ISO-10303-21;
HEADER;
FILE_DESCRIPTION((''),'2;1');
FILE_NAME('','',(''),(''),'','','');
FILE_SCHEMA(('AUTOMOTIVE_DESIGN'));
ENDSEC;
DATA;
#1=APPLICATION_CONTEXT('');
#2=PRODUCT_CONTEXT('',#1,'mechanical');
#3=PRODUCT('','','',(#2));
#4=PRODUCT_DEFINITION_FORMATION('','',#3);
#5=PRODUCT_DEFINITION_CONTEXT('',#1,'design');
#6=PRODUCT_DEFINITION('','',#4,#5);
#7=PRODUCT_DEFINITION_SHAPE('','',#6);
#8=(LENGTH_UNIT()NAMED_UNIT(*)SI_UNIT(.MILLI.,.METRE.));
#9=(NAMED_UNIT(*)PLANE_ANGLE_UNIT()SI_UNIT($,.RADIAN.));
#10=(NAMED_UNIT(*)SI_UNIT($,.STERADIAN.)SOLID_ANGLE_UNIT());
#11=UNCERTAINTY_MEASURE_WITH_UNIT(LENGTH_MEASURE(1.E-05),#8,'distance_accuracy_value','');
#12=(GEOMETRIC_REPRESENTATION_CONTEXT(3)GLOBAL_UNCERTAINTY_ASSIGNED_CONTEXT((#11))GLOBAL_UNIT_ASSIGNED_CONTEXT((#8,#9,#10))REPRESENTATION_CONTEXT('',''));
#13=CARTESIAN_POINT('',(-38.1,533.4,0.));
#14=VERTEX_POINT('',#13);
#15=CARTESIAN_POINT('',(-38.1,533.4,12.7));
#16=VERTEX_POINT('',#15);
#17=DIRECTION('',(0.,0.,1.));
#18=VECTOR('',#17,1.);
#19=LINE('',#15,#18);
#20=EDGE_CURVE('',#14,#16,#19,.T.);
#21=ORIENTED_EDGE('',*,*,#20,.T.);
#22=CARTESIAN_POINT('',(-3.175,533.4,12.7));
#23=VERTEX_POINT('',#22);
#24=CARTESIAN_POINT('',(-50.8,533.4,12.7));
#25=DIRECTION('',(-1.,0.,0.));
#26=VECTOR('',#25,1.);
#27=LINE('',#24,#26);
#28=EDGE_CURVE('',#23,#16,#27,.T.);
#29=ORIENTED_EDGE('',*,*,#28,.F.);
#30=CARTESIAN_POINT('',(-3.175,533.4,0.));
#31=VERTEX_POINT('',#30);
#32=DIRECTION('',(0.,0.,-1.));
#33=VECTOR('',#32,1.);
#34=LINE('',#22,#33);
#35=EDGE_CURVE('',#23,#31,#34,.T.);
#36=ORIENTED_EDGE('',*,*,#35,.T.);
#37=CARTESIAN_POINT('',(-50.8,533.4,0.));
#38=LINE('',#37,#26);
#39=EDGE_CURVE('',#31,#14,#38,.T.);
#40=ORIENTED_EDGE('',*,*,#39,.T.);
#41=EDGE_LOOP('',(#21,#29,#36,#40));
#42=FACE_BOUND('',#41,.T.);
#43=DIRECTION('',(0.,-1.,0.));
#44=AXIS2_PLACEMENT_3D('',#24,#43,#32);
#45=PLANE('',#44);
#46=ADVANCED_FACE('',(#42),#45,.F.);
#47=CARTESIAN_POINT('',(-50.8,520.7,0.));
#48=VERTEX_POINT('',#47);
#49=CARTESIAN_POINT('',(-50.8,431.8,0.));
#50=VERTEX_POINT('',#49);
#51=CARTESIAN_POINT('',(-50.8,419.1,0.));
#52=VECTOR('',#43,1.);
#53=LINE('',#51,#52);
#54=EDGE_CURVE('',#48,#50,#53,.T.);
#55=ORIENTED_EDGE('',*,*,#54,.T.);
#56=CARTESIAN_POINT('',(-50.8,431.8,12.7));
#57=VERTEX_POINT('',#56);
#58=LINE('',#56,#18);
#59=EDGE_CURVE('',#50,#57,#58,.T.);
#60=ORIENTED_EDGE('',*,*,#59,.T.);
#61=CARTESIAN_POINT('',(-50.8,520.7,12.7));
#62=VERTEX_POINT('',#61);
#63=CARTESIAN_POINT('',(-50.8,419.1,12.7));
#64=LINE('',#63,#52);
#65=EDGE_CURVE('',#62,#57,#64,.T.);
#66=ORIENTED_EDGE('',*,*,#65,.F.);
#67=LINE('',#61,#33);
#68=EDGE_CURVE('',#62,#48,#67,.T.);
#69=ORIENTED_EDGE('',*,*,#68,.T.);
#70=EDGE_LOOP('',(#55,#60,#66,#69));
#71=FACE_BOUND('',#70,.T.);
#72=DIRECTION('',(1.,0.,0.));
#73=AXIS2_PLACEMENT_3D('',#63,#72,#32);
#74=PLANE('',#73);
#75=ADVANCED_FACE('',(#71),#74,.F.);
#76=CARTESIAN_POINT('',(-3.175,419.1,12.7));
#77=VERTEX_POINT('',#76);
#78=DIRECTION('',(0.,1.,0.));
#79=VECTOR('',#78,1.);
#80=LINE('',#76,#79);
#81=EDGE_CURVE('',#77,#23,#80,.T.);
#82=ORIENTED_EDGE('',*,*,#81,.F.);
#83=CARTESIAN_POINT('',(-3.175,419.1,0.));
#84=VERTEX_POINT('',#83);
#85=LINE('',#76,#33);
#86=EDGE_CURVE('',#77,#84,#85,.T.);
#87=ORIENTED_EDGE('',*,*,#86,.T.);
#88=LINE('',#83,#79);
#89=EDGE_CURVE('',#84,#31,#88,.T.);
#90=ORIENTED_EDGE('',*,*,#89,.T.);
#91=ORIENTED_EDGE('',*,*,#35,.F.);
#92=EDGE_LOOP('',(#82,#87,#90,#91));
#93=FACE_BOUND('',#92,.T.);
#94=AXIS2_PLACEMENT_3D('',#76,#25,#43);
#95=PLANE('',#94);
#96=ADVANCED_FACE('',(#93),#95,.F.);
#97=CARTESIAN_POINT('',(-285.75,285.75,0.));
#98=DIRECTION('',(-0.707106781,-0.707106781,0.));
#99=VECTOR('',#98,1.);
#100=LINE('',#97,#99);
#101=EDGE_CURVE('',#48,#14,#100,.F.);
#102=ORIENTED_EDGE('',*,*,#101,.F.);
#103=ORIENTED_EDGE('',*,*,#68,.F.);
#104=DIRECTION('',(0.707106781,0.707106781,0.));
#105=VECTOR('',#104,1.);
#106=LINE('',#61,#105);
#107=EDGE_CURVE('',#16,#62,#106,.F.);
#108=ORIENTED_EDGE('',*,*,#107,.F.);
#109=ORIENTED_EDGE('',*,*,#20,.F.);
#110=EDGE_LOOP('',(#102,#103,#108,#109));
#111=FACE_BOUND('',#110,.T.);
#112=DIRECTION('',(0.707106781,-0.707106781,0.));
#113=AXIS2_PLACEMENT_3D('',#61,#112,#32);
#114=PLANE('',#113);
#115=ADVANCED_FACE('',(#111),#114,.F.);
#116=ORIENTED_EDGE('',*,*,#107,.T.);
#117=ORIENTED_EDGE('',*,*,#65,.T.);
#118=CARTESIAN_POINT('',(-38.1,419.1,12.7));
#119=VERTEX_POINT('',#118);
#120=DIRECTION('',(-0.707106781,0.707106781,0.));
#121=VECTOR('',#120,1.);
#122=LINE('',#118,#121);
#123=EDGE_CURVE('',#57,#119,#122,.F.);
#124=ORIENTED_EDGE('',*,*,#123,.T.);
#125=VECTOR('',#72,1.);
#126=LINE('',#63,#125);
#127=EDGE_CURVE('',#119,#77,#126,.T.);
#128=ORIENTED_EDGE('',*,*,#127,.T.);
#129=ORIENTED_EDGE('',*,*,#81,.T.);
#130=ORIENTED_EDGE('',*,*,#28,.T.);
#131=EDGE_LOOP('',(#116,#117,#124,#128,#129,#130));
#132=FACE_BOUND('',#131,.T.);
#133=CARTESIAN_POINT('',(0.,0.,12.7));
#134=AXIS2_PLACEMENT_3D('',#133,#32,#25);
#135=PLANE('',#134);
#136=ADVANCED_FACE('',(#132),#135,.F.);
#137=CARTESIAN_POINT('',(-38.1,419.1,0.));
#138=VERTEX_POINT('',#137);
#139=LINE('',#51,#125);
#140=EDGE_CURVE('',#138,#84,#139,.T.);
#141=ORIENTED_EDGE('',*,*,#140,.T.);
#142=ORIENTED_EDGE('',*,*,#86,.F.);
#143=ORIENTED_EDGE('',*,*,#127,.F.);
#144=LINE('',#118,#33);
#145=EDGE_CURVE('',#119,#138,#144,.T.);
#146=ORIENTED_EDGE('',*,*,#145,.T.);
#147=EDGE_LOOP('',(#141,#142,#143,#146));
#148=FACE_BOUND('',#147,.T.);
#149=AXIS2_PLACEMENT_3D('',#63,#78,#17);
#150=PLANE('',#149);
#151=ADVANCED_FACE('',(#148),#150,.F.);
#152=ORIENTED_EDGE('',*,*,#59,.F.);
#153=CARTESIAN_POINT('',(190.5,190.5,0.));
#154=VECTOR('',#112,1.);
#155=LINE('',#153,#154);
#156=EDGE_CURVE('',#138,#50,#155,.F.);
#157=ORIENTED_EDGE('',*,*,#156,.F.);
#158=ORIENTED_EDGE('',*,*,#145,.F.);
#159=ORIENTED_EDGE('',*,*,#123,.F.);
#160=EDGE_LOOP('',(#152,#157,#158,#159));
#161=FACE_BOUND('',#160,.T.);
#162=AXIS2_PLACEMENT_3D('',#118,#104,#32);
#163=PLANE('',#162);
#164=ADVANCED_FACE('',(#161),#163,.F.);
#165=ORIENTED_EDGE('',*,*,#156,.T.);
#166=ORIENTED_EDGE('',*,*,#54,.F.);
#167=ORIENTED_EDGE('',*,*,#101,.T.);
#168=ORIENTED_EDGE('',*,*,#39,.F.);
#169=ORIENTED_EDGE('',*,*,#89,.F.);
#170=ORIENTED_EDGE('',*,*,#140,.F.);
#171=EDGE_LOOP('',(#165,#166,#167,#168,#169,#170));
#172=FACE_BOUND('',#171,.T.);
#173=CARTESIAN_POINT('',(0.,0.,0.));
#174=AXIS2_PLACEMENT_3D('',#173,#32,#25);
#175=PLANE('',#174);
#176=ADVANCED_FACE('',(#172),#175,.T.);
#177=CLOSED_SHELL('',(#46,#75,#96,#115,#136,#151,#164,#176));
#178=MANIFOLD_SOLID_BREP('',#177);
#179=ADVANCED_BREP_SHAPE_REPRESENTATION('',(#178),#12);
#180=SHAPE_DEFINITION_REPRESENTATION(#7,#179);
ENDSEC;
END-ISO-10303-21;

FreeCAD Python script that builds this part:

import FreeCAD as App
import Part
import Sketcher
Q = App.Units.Quantity


def edges_at(feature, points):
    """Names of the edges that pass closest to the given points."""
    edges = feature.Shape.Edges
    near = lambda p: min(range(len(edges)), key=lambda i: edges[i].distToShape(Part.Vertex(*p))[0])
    return sorted({f"Edge{near(p) + 1}" for p in points})

doc = App.newDocument("Part")
body = doc.addObject("PartDesign::Body", "Body")

# Sketch on XY plane
sketch1 = doc.addObject("Sketcher::SketchObject", "Sketch")
body.addObject(sketch1)
sketch1.AttachmentSupport = (doc.XY_Plane, [""])
sketch1.MapMode = "FlatFace"
sketch1.addGeometry(Part.LineSegment(App.Vector(-51, 533, 0), App.Vector(-51, 419, 0)), False)
sketch1.addGeometry(Part.LineSegment(App.Vector(-51, 419, 0), App.Vector(-3, 419, 0)), False)
sketch1.addGeometry(Part.LineSegment(App.Vector(-3, 419, 0), App.Vector(-3, 533, 0)), False)
sketch1.addGeometry(Part.LineSegment(App.Vector(-3, 533, 0), App.Vector(-51, 533, 0)), False)
sketch1.addConstraint(Sketcher.Constraint("Coincident", 0, 2, 1, 1))
sketch1.addConstraint(Sketcher.Constraint("Coincident", 1, 2, 2, 1))
sketch1.addConstraint(Sketcher.Constraint("Coincident", 2, 2, 3, 1))
sketch1.addConstraint(Sketcher.Constraint("Coincident", 3, 2, 0, 1))
sketch1.addConstraint(Sketcher.Constraint("Vertical", 0))
sketch1.addConstraint(Sketcher.Constraint("Horizontal", 1))
sketch1.addConstraint(Sketcher.Constraint("Vertical", 2))
sketch1.addConstraint(Sketcher.Constraint("Horizontal", 3))
sketch1.addConstraint(Sketcher.Constraint("DistanceY", 0, 2, 0, 1, Q("4.5 in")))
sketch1.addConstraint(Sketcher.Constraint("DistanceX", 0, 2, -1, 1, Q("2 in")))
sketch1.addConstraint(Sketcher.Constraint("DistanceY", -1, 1, 2, 2, Q("21 in")))
sketch1.addConstraint(Sketcher.Constraint("DistanceX", 1, 1, 1, 2, Q("1.875 in")))
pad1 = doc.addObject("PartDesign::Pad", "Pad")
body.addObject(pad1)
pad1.Profile = sketch1
pad1.Length = Q("0.5 in")
doc.recompute()

chamfer = doc.addObject("PartDesign::Chamfer", "Chamfer")
body.addObject(chamfer)
chamfer.Base = (pad1, edges_at(pad1, [(-50.8, 533.4, 6.35), (-50.8, 419.1, 6.35)]))
chamfer.Size = Q("0.5 in")

doc.recompute()
